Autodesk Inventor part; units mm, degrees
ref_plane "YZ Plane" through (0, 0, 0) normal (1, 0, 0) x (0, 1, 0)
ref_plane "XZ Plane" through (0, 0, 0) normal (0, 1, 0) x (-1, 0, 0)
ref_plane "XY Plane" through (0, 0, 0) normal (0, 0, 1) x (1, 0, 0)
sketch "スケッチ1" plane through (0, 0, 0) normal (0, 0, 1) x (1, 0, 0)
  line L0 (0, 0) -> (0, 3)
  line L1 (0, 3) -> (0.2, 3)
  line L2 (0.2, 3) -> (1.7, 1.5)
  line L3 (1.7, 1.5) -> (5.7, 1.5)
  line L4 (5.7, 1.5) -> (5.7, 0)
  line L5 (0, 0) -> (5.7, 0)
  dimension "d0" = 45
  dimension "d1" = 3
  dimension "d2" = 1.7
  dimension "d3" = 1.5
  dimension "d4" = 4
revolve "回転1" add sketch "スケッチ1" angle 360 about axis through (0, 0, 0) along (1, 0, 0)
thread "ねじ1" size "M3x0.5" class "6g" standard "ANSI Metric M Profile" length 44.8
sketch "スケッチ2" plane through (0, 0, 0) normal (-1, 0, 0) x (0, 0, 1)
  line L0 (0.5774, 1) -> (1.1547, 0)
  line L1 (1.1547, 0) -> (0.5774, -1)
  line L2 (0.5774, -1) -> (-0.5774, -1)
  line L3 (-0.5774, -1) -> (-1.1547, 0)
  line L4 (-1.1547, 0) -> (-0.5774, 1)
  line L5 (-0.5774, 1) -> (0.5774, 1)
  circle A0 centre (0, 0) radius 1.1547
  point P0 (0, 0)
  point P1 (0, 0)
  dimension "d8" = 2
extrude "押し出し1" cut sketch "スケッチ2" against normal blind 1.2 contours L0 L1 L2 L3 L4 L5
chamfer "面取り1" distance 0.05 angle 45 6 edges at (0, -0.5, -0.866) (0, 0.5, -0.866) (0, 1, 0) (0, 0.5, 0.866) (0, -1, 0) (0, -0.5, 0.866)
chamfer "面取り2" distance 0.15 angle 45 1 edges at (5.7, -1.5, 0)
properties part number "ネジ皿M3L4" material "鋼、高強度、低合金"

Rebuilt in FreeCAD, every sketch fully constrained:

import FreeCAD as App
import Part
import Sketcher
from FreeCAD import Vector
Q = App.Units.Quantity


def edges_at(feature, points):
    """Names of the edges that pass closest to the given points."""
    edges = feature.Shape.Edges
    near = lambda p: min(range(len(edges)), key=lambda i: edges[i].distToShape(Part.Vertex(*p))[0])
    return sorted({f"Edge{near(p) + 1}" for p in points})


def add_polygon(sketch, points):
    """Adds a closed chain of lines whose ends are joined by coincident constraints."""
    first, n = sketch.GeometryCount, len(points)
    for a, b in zip(points, points[1:] + points[:1]):
        sketch.addGeometry(Part.LineSegment(App.Vector(*a, 0), App.Vector(*b, 0)), False)
    for i in range(n):
        sketch.addConstraint(Sketcher.Constraint("Coincident", first + i, 2, first + (i + 1) % n, 1))

doc = App.newDocument("Part")
body = doc.addObject("PartDesign::Body", "Body")

sketch1 = body.newObject("Sketcher::SketchObject", "Sketch")
sketch1.AttachmentSupport = (doc.getObject("XY_Plane"), [""])
sketch1.MapMode = "FlatFace"
add_polygon(sketch1, [(0, 3), (0, 0), (5.7, 0), (5.7, 1.5), (1.7, 1.5), (0.2, 3)])
sketch1.addConstraint(Sketcher.Constraint("Vertical", 0))
sketch1.addConstraint(Sketcher.Constraint("Horizontal", 1))
sketch1.addConstraint(Sketcher.Constraint("Vertical", 2))
sketch1.addConstraint(Sketcher.Constraint("Horizontal", 3))
sketch1.addConstraint(Sketcher.Constraint("Horizontal", 5))
sketch1.addConstraint(Sketcher.Constraint("Coincident", 0, 2, -1, 1))
sketch1.addConstraint(Sketcher.Constraint("DistanceX", 3, 2, 3, 1, Q("4 mm")))
sketch1.addConstraint(Sketcher.Constraint("DistanceY", 0, 2, 0, 1, Q("3 mm")))
sketch1.addConstraint(Sketcher.Constraint("DistanceY", 2, 1, 2, 2, Q("1.5 mm")))
sketch1.addConstraint(Sketcher.Constraint("DistanceX", -1, 1, 3, 2, Q("1.7 mm")))
sketch1.addConstraint(Sketcher.Constraint("DistanceX", 4, 2, 3, 2, Q("1.5 mm")))
revolution = body.newObject("PartDesign::Revolution", "Revolution")
revolution.Profile = sketch1
revolution.ReferenceAxis = (sketch1, ["H_Axis"])
revolution.Angle = 360

sketch2 = body.newObject("Sketcher::SketchObject", "Sketch001")
sketch2.AttachmentSupport = (doc.getObject("YZ_Plane"), [""])
sketch2.MapMode = "FlatFace"
add_polygon(sketch2, [(0, 1.2), (1, 0.6), (1, -0.6), (0, -1.2), (-1, -0.6), (-1, 0.6)])
sketch2.addConstraint(Sketcher.Constraint("Vertical", 1))
sketch2.addConstraint(Sketcher.Constraint("Vertical", 4))
sketch2.addConstraint(Sketcher.Constraint("Symmetric", 0, 2, 3, 2, -1, 1))
sketch2.addConstraint(Sketcher.Constraint("Symmetric", 2, 2, 5, 2, -1, 1))
sketch2.addConstraint(Sketcher.Constraint("PointOnObject", 2, 2, -2))
sketch2.addConstraint(Sketcher.Constraint("Parallel", 2, 5))
sketch2.addConstraint(Sketcher.Constraint("Horizontal", 1, 2, 3, 2))
sketch2.addConstraint(Sketcher.Constraint("DistanceX", 3, 2, 1, 2, Q("2 mm")))
sketch2.addConstraint(Sketcher.Constraint("DistanceY", 1, 2, 1, 1, Q("1.1548 mm")))
sketch2.addConstraint(Sketcher.Constraint("DistanceY", 2, 2, 0, 2, Q("1.732 mm")))
pocket1 = body.newObject("PartDesign::Pocket", "Pocket")
pocket1.Profile = sketch2
pocket1.Length = 1.2
pocket1.Reversed = True
doc.recompute()

chamfer = body.newObject("PartDesign::Chamfer", "Chamfer")
chamfer.Base = (pocket1, edges_at(pocket1, [
    (0, -0.5, -0.866),
    (0, 0.5, -0.866),
    (0, 1, 0),
    (0, 0.5, 0.866),
    (0, -1, 0),
    (0, -0.5, 0.866),
]))
chamfer.Size = 0.05
doc.recompute()

chamfer2 = body.newObject("PartDesign::Chamfer", "Chamfer001")
chamfer2.Base = (chamfer, edges_at(chamfer, [(5.7, -1.5, 0)]))
chamfer2.Size = 0.15

doc.recompute()
